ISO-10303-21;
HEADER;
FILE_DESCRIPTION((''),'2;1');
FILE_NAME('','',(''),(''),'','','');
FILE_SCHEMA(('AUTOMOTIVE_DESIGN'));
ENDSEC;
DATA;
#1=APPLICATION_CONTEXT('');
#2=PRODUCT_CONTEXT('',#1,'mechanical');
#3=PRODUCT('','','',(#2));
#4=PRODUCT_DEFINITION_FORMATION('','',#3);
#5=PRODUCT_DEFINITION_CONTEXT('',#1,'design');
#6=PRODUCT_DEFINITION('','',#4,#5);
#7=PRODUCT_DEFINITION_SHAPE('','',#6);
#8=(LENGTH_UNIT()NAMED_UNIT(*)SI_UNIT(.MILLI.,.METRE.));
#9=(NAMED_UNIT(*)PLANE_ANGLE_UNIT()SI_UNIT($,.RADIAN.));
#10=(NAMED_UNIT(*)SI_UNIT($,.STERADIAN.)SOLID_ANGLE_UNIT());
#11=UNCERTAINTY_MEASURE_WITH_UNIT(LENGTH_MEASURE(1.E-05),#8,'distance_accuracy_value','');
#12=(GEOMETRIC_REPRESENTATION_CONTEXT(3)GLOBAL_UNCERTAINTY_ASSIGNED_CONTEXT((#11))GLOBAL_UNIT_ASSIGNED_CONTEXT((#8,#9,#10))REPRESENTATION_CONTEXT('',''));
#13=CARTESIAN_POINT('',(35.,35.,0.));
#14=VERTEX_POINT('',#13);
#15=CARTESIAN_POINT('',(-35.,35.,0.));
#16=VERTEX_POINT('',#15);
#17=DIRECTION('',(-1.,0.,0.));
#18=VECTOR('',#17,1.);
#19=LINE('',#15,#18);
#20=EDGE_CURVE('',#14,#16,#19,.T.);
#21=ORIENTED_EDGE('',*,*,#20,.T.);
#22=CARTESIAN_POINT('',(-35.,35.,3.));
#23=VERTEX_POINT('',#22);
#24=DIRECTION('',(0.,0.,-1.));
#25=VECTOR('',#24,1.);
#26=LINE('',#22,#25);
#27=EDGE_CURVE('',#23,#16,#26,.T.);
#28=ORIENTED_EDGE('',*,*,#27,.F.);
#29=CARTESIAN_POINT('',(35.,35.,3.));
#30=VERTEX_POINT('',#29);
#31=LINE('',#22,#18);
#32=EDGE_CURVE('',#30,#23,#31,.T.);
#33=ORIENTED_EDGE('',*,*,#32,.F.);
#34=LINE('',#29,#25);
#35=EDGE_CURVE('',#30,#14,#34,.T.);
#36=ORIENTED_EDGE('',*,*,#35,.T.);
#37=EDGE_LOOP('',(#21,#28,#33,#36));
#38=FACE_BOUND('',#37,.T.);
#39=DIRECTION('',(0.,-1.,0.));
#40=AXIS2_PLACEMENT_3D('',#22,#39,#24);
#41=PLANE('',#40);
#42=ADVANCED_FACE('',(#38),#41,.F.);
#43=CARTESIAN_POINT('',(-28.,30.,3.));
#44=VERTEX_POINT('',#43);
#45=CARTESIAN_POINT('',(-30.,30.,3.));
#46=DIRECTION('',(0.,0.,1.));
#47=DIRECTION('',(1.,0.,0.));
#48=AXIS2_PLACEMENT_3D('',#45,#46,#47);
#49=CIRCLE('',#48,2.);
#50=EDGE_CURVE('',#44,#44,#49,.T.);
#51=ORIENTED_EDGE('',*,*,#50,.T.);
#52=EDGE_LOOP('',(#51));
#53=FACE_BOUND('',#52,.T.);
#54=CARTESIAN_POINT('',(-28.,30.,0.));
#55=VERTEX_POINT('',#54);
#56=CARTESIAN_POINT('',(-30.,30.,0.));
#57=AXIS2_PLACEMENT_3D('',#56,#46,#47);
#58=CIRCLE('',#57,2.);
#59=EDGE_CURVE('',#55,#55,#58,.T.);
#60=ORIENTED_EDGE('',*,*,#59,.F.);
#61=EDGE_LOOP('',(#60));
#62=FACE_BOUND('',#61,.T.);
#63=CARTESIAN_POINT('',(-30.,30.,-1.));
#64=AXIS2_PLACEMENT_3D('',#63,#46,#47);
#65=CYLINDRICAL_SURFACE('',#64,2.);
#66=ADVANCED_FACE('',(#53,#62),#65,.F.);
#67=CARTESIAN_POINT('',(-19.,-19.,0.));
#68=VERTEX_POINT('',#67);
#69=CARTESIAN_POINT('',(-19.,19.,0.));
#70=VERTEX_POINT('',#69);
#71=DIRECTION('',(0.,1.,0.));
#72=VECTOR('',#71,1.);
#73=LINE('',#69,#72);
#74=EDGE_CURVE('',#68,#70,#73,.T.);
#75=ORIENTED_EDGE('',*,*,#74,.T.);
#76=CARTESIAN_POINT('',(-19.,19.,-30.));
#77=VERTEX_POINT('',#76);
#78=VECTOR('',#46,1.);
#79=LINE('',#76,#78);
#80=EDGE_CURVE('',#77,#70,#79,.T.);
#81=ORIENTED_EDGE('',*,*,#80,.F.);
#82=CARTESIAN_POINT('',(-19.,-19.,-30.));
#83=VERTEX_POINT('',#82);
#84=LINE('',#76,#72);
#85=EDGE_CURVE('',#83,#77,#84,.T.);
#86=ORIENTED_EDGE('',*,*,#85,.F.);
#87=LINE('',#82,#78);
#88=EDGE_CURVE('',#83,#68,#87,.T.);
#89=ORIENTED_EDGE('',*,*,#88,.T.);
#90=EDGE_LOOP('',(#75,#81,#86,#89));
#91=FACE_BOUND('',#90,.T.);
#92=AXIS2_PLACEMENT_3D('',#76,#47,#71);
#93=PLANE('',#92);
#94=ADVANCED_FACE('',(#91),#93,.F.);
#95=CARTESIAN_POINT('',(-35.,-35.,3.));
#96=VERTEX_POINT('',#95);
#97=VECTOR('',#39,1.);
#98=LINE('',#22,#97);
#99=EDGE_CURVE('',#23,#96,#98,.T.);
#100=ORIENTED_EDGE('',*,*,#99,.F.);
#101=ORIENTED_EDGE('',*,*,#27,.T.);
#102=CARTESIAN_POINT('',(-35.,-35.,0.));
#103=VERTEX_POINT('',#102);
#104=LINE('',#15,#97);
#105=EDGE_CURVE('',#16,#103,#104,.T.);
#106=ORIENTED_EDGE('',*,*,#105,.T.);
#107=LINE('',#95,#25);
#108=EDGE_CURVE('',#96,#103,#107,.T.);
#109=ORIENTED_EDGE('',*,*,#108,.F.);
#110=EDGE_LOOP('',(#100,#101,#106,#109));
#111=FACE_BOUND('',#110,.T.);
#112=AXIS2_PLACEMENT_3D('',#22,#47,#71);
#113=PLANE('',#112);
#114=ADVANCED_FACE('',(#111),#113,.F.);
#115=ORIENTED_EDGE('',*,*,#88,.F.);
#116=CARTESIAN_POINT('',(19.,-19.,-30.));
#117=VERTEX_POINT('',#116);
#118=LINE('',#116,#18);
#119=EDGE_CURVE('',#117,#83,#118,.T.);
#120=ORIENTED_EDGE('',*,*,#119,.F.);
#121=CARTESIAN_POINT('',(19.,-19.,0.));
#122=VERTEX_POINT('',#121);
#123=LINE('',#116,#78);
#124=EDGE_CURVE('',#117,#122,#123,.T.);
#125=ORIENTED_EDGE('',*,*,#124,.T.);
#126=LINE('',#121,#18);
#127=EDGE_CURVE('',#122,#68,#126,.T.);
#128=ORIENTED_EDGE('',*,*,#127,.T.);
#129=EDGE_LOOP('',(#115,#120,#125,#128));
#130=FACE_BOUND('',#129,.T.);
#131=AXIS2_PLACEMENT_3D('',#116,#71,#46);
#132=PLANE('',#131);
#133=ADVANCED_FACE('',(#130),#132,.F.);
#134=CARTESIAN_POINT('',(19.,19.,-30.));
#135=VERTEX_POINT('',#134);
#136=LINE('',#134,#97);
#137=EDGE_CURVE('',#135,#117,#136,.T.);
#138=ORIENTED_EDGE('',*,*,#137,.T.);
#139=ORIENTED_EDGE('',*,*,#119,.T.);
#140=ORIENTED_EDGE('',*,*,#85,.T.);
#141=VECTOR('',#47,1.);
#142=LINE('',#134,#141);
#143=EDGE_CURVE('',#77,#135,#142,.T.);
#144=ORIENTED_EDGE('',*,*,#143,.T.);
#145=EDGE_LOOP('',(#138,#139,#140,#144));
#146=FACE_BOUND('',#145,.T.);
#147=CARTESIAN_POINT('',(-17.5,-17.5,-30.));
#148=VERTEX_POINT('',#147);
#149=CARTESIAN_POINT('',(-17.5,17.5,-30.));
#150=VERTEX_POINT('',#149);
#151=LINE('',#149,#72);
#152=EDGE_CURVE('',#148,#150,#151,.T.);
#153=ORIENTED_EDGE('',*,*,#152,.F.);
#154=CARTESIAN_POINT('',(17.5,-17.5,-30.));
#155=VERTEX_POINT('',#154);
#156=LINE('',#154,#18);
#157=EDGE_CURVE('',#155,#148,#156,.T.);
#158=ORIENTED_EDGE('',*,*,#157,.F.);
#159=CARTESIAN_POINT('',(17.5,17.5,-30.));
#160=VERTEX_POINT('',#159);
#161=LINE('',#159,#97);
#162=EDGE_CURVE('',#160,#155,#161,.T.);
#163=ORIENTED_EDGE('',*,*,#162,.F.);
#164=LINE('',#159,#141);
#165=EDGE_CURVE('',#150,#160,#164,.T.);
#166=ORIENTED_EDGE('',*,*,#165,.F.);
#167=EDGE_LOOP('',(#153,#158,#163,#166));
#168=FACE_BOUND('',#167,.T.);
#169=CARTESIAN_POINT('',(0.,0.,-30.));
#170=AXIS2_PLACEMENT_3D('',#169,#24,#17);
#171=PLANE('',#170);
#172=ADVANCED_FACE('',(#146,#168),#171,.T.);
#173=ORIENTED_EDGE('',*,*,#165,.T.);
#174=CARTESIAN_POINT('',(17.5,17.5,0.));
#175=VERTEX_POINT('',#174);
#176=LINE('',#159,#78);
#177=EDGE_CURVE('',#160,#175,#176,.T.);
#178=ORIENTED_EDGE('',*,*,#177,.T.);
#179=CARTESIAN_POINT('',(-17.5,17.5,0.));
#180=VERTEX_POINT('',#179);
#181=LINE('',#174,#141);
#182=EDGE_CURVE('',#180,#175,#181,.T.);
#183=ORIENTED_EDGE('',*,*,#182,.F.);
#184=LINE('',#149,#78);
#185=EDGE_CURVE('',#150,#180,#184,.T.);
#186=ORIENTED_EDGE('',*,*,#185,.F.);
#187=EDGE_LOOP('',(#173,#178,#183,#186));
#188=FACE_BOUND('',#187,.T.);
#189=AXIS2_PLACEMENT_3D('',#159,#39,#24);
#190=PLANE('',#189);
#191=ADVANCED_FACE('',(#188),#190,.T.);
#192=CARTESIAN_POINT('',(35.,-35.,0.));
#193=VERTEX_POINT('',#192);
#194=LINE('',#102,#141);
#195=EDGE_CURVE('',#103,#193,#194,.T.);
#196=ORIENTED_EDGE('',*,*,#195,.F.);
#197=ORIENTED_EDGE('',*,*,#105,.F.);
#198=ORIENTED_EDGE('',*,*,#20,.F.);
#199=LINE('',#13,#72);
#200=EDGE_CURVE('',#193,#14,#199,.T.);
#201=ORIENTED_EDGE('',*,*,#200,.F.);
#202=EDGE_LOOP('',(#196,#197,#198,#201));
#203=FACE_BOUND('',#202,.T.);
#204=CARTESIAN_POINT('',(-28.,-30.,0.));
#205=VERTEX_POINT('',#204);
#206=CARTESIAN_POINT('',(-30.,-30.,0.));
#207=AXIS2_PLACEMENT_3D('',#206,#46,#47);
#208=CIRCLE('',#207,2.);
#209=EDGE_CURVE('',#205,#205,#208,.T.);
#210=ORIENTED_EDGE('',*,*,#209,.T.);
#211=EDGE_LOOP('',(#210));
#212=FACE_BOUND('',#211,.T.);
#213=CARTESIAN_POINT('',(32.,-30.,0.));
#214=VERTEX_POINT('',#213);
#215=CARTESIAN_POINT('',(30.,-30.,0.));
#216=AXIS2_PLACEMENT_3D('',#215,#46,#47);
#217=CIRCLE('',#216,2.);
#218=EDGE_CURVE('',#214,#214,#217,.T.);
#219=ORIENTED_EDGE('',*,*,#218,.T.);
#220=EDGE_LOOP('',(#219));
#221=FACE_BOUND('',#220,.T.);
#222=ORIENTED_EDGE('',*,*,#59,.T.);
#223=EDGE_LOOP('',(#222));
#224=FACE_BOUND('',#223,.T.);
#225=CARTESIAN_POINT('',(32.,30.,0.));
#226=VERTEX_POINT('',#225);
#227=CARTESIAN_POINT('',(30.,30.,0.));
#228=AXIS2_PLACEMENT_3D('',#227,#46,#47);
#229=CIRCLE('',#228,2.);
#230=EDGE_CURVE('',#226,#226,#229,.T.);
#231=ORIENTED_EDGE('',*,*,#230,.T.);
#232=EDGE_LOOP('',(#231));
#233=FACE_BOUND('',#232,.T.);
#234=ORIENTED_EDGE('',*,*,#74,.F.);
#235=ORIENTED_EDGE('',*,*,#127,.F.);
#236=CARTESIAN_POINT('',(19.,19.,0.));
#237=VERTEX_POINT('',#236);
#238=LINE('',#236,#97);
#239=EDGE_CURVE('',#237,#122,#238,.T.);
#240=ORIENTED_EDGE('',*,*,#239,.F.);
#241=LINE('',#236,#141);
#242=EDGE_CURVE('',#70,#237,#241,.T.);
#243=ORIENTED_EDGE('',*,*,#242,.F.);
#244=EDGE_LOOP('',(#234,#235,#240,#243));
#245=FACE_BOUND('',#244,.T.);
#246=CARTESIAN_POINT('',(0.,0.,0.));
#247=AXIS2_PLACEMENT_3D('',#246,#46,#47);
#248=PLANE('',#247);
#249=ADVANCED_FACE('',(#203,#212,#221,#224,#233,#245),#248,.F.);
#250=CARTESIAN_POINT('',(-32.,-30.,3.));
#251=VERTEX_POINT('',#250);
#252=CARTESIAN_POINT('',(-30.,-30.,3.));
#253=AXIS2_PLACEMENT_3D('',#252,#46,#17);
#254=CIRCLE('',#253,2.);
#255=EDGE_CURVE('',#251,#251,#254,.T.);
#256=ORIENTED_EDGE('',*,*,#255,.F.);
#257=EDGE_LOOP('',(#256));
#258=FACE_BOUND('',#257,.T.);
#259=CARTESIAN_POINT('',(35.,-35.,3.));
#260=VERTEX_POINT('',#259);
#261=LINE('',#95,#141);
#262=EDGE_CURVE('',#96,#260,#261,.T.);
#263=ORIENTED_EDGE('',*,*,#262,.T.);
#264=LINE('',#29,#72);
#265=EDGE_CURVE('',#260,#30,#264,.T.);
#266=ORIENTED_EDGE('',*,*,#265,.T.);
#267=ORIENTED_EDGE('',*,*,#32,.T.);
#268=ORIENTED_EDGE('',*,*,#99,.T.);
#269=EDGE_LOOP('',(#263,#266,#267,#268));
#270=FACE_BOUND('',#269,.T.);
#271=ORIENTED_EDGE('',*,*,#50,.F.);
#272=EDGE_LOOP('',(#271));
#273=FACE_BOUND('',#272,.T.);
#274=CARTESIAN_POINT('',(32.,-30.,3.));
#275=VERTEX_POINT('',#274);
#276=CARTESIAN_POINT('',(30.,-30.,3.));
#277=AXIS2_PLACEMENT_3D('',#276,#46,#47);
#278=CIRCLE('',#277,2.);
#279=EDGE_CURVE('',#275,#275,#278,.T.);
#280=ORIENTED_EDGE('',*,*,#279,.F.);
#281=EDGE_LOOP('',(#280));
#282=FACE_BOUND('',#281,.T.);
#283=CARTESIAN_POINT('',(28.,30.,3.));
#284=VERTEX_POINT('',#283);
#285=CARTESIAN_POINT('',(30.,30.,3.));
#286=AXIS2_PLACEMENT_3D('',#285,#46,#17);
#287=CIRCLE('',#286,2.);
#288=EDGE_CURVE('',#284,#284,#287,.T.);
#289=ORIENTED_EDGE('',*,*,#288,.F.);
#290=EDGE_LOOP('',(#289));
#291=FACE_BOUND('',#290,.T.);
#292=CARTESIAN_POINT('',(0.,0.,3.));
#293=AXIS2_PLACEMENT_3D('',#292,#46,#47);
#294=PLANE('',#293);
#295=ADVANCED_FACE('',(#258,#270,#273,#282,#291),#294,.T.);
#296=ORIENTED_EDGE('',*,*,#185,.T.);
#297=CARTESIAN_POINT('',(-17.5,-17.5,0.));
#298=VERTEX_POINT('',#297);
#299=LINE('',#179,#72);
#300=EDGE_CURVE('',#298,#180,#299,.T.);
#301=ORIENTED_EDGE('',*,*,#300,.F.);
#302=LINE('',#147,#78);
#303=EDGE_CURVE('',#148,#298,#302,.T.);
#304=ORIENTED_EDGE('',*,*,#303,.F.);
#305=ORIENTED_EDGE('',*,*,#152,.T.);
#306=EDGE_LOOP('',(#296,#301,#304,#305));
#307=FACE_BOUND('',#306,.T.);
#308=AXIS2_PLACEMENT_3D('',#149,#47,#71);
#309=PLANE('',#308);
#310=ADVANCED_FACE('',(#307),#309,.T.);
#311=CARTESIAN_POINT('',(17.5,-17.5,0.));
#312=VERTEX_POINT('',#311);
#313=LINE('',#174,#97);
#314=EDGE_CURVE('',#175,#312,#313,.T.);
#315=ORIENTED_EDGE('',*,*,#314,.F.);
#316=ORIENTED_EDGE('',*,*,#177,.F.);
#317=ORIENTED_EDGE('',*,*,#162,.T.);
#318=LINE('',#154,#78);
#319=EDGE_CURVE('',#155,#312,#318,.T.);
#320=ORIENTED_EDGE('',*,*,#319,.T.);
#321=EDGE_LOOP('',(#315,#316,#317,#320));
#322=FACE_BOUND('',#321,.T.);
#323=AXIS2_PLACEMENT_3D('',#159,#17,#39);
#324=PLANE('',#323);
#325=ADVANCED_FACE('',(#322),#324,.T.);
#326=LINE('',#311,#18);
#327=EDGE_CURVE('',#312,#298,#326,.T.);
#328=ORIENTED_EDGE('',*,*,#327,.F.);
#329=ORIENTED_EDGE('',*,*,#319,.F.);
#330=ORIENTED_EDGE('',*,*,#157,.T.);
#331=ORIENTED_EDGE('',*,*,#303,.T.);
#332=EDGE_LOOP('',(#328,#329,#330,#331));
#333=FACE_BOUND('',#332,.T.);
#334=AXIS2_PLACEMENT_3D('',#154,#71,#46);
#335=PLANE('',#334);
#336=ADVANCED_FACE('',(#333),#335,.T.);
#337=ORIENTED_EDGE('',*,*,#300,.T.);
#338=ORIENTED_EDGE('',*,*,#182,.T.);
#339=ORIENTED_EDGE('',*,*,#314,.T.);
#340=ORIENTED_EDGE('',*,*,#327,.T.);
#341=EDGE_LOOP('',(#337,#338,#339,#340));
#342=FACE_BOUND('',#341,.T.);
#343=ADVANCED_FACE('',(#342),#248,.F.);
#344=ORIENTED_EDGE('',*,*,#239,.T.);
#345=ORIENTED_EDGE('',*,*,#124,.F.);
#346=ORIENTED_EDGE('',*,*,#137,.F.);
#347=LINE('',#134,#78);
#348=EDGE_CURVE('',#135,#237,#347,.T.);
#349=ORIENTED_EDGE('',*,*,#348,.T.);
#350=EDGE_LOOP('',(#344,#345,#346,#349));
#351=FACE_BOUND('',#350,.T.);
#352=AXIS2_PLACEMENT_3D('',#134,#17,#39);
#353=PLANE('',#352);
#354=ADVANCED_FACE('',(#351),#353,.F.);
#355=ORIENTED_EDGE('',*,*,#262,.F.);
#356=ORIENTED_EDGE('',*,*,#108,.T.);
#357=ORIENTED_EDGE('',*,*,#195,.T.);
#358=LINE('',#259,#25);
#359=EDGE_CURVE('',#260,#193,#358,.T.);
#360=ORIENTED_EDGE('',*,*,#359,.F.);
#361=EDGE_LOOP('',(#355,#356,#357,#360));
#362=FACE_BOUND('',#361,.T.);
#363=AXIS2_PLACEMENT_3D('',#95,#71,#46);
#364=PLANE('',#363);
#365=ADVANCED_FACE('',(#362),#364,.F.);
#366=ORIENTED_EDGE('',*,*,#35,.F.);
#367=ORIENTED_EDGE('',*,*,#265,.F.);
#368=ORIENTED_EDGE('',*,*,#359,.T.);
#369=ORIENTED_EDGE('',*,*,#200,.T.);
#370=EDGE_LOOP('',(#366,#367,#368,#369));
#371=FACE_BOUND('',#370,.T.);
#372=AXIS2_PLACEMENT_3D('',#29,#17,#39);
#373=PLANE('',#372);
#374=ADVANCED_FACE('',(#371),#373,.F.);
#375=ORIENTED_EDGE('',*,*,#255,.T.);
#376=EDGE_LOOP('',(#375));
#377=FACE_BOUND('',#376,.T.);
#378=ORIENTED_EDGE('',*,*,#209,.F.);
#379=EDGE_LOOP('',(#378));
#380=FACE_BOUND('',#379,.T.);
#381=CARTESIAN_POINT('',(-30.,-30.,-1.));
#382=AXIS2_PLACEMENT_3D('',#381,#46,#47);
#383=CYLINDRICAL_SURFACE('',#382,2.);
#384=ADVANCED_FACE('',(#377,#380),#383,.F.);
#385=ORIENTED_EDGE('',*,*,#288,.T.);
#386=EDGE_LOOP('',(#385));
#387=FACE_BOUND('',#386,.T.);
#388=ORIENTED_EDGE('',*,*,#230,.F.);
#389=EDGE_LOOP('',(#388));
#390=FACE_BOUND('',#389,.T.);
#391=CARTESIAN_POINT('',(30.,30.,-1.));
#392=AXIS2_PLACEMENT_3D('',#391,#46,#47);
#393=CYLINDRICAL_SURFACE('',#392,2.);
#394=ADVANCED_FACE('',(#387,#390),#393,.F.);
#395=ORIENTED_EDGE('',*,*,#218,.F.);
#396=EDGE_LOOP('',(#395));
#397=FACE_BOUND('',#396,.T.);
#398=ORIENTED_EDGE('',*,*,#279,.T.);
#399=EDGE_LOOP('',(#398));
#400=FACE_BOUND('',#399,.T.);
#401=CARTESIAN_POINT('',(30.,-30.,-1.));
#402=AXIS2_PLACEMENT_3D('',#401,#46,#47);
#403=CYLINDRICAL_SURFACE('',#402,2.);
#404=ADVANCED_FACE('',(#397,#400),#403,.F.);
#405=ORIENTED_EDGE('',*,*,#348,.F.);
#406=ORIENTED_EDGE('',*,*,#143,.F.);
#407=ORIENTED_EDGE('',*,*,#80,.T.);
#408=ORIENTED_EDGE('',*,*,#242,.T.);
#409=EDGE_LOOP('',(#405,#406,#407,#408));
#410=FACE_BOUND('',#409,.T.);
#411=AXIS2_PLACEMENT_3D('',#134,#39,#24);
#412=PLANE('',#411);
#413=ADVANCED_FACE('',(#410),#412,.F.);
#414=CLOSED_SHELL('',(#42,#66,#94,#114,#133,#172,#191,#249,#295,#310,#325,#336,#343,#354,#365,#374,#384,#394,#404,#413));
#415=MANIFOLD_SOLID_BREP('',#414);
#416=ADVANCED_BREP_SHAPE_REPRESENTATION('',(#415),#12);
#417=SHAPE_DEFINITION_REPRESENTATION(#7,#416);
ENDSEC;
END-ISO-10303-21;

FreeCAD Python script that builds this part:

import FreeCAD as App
import Part
import Sketcher
from FreeCAD import Vector


def add_polygon(sketch, points):
    """Adds a closed chain of lines whose ends are joined by coincident constraints."""
    first, n = sketch.GeometryCount, len(points)
    for a, b in zip(points, points[1:] + points[:1]):
        sketch.addGeometry(Part.LineSegment(App.Vector(*a, 0), App.Vector(*b, 0)), False)
    for i in range(n):
        sketch.addConstraint(Sketcher.Constraint("Coincident", first + i, 2, first + (i + 1) % n, 1))

doc = App.newDocument("Part")
body = doc.addObject("PartDesign::Body", "Body")

# Sketch on XY plane
sketch1 = doc.addObject("Sketcher::SketchObject", "Sketch")
body.addObject(sketch1)
sketch1.AttachmentSupport = (doc.XY_Plane, [""])
sketch1.MapMode = "FlatFace"
add_polygon(sketch1, [(-35, 35), (-35, -35), (35, -35), (35, 35)])  # lines 0-3
sketch1.addConstraint([
    Sketcher.Constraint("Vertical", 0),
    Sketcher.Constraint("Horizontal", 1),
    Sketcher.Constraint("Vertical", 2),
    Sketcher.Constraint("Horizontal", 3),
    Sketcher.Constraint("Symmetric", 0, 2, 2, 2, -1, 1),
    Sketcher.Constraint("Equal", 3, 0),
    Sketcher.Constraint("DistanceX", 1, 1, 1, 2, 70.0),
])
pad1 = doc.addObject("PartDesign::Pad", "Pad")
body.addObject(pad1)
pad1.Profile = sketch1
pad1.Length = 3

# Sketch on XY plane
sketch2 = doc.addObject("Sketcher::SketchObject", "Sketch001")
body.addObject(sketch2)
sketch2.AttachmentSupport = (doc.XY_Plane, [""])
sketch2.MapMode = "FlatFace"
sketch2.AttachmentOffset = App.Placement(Vector(0, 0, 3), App.Rotation())
sketch2.addGeometry([
    Part.Circle(Vector(-30, 30, 0), Vector(0, 0, 1), 2),
    Part.Circle(Vector(30, 30, 0), Vector(0, 0, 1), 2),
    Part.Circle(Vector(30, -30, 0), Vector(0, 0, 1), 2),
    Part.Circle(Vector(-30, -30, 0), Vector(0, 0, 1), 2),
], False)
sketch2.addConstraint([
    Sketcher.Constraint("Equal", 0, 1),
    Sketcher.Constraint("Equal", 1, 2),
    Sketcher.Constraint("Equal", 2, 3),
    Sketcher.Constraint("Symmetric", 0, 3, 2, 3, -1, 1),
    Sketcher.Constraint("Symmetric", 1, 3, 3, 3, -1, 1),
    Sketcher.Constraint("Symmetric", 0, 3, 1, 3, -2),
    Sketcher.Constraint("Diameter", 0, 4.0),
    Sketcher.Constraint("DistanceX", 0, 3, -1, 1, 30.0),
    Sketcher.Constraint("DistanceY", -1, 1, 0, 3, 30.0),
])
pocket1 = doc.addObject("PartDesign::Pocket", "Pocket")
body.addObject(pocket1)
pocket1.Profile = sketch2
pocket1.Length = 4

# Sketch on XY plane
sketch3 = doc.addObject("Sketcher::SketchObject", "Sketch002")
body.addObject(sketch3)
sketch3.AttachmentSupport = (doc.XY_Plane, [""])
sketch3.MapMode = "FlatFace"
add_polygon(sketch3, [(19, 19), (19, -19), (-19, -19), (-19, 19)])  # lines 0-3
add_polygon(sketch3, [(-18, -18), (18, -18), (18, 18), (-18, 18)])  # lines 4-7
sketch3.addConstraint([
    Sketcher.Constraint("Vertical", 0),
    Sketcher.Constraint("Horizontal", 1),
    Sketcher.Constraint("Vertical", 2),
    Sketcher.Constraint("Horizontal", 3),
    Sketcher.Constraint("Horizontal", 4),
    Sketcher.Constraint("Vertical", 5),
    Sketcher.Constraint("Horizontal", 6),
    Sketcher.Constraint("Vertical", 7),
    Sketcher.Constraint("Symmetric", 0, 2, 2, 2, -1, 1),
    Sketcher.Constraint("Symmetric", 4, 2, 6, 2, -1, 1),
    Sketcher.Constraint("Equal", 3, 0),
    Sketcher.Constraint("Equal", 6, 5),
    Sketcher.Constraint("DistanceX", 1, 2, 1, 1, 38.0),
    Sketcher.Constraint("DistanceX", 4, 1, 4, 2, 35.0),
])
pad2 = doc.addObject("PartDesign::Pad", "Pad001")
body.addObject(pad2)
pad2.Profile = sketch3
pad2.Length = 30
pad2.Reversed = True

doc.recompute()
